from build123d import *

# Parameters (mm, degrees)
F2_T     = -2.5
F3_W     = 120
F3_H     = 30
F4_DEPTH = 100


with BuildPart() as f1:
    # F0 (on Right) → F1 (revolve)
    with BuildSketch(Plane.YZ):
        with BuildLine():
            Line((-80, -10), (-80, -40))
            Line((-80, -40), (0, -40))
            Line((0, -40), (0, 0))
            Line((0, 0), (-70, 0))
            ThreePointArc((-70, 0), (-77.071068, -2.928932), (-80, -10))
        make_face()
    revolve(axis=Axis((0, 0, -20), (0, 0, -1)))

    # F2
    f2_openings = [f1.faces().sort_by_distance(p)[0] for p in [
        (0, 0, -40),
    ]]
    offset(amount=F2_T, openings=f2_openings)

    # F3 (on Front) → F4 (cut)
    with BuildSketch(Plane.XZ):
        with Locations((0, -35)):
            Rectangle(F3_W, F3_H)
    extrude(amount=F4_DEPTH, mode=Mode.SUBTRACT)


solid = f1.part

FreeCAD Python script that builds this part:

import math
import FreeCAD as App
import Part
import Sketcher

V = App.Vector


def faces_at(feature, points):
    """Names of the faces that lie closest to the given points."""
    faces = feature.Shape.Faces
    near = lambda p: min(range(len(faces)), key=lambda i: faces[i].distToShape(Part.Vertex(*p))[0])
    return sorted({f"Face{near(p) + 1}" for p in points})


def add_polygon(sketch, points):
    """Adds a closed chain of lines whose ends are joined by coincident constraints."""
    first, n = sketch.GeometryCount, len(points)
    for a, b in zip(points, points[1:] + points[:1]):
        sketch.addGeometry(Part.LineSegment(App.Vector(*a, 0), App.Vector(*b, 0)), False)
    for i in range(n):
        sketch.addConstraint(Sketcher.Constraint("Coincident", first + i, 2, first + (i + 1) % n, 1))

doc = App.newDocument("Part")
body = doc.addObject("PartDesign::Body", "Body")

sketch1 = doc.addObject("Sketcher::SketchObject", "Sketch")
body.addObject(sketch1)
sketch1.AttachmentSupport = (doc.YZ_Plane, [""])
sketch1.MapMode = "FlatFace"
sketch1.addGeometry([
    Part.LineSegment(V(-80, -10, 0), V(-80, -40, 0)),
    Part.LineSegment(V(-80, -40, 0), V(0, -40, 0)),
    Part.LineSegment(V(0, -40, 0), V(0, 0, 0)),
    Part.LineSegment(V(0, 0, 0), V(-70, 0, 0)),
    Part.ArcOfCircle(Part.Circle(V(-70, -10, 0), V(0, 0, 1), 10), math.radians(90), math.radians(180)),
], False)
sketch1.addConstraint([
    Sketcher.Constraint("Coincident", 0, 2, 1, 1),
    Sketcher.Constraint("Coincident", 1, 2, 2, 1),
    Sketcher.Constraint("Coincident", 2, 2, 3, 1),
    Sketcher.Constraint("Tangent", 3, 2, 4, 1),
    Sketcher.Constraint("Tangent", 4, 2, 0, 1),
    Sketcher.Constraint("Vertical", 0),
    Sketcher.Constraint("Horizontal", 1),
    Sketcher.Constraint("Vertical", 2),
    Sketcher.Constraint("Horizontal", 3),
    Sketcher.Constraint("Coincident", 2, 2, -1, 1),
    Sketcher.Constraint("Radius", 4, 9.999999),
    Sketcher.Constraint("DistanceX", 1, 1, 1, 2, 80.0),
    Sketcher.Constraint("DistanceY", 0, 2, 0, 1, 30.0),
])
revolution = doc.addObject("PartDesign::Revolution", "Revolution")
body.addObject(revolution)
revolution.Profile = sketch1
revolution.ReferenceAxis = (sketch1, ["V_Axis"])
revolution.Angle = 360
doc.recompute()

thickness = doc.addObject("PartDesign::Thickness", "Thickness")
body.addObject(thickness)
thickness.Base = (revolution, faces_at(revolution, [(0, 0, -40)]))
thickness.Value = 2.5
thickness.Reversed = True
thickness.Join = "Arc"

sketch2 = doc.addObject("Sketcher::SketchObject", "Sketch001")
body.addObject(sketch2)
sketch2.AttachmentSupport = (doc.XZ_Plane, [""])
sketch2.MapMode = "FlatFace"
add_polygon(sketch2, [(-60, -20), (-60, -50), (60, -50), (60, -20)])
sketch2.addConstraint([
    Sketcher.Constraint("Vertical", 0),
    Sketcher.Constraint("Horizontal", 1),
    Sketcher.Constraint("Vertical", 2),
    Sketcher.Constraint("Horizontal", 3),
    Sketcher.Constraint("DistanceX", 1, 1, 1, 2, 120.0),
    Sketcher.Constraint("DistanceY", 0, 2, 0, 1, 30.0),
    Sketcher.Constraint("DistanceX", 0, 2, -1, 1, 60.0),
    Sketcher.Constraint("DistanceY", 0, 2, -1, 1, 50.0),
])
pocket1 = doc.addObject("PartDesign::Pocket", "Pocket")
body.addObject(pocket1)
pocket1.Profile = sketch2
pocket1.Length = 100
pocket1.Reversed = True

doc.recompute()
